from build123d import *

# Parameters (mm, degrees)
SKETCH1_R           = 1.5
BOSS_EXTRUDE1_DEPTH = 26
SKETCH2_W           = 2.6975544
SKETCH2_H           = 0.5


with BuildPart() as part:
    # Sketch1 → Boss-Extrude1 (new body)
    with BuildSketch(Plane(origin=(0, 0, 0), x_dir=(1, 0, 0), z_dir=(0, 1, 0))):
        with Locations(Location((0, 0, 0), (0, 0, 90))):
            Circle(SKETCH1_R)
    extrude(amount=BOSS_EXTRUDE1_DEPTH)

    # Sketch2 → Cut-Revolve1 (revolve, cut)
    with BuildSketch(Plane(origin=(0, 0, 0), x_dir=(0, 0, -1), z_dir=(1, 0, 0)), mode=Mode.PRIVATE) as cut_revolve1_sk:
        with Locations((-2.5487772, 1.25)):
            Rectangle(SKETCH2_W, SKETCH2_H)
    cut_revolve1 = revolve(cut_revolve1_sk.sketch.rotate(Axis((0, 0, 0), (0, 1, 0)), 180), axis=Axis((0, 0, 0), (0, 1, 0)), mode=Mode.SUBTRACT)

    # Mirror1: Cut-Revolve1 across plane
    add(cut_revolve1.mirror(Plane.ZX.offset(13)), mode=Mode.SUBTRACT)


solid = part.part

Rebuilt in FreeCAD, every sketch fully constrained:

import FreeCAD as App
import Part
import Sketcher
from FreeCAD import Vector


def add_polygon(sketch, points):
    """Adds a closed chain of lines whose ends are joined by coincident constraints."""
    first, n = sketch.GeometryCount, len(points)
    for a, b in zip(points, points[1:] + points[:1]):
        sketch.addGeometry(Part.LineSegment(App.Vector(*a, 0), App.Vector(*b, 0)), False)
    for i in range(n):
        sketch.addConstraint(Sketcher.Constraint("Coincident", first + i, 2, first + (i + 1) % n, 1))

doc = App.newDocument("Part")
body = doc.addObject("PartDesign::Body", "Body")

# Sketch on XZ plane
sketch1 = doc.addObject("Sketcher::SketchObject", "Sketch")
body.addObject(sketch1)
sketch1.AttachmentSupport = (doc.XZ_Plane, [""])
sketch1.MapMode = "FlatFace"
sketch1.addGeometry(Part.Circle(Vector(0, 0, 0), Vector(0, 0, 1), 1.5), False)
sketch1.addConstraint([
    Sketcher.Constraint("Coincident", 0, 3, -1, 1),
    Sketcher.Constraint("Diameter", 0, 3.0),
])
pad1 = doc.addObject("PartDesign::Pad", "Pad")
body.addObject(pad1)
pad1.Profile = sketch1
pad1.Length = 26
pad1.Reversed = True

# Sketch on YZ plane
sketch2 = doc.addObject("Sketcher::SketchObject", "Sketch001")
body.addObject(sketch2)
sketch2.AttachmentSupport = (doc.YZ_Plane, [""])
sketch2.MapMode = "FlatFace"
add_polygon(sketch2, [(1.5, 3.9), (1, 3.9), (1, 1.2), (1.5, 1.2)])  # lines 0-3
sketch2.addConstraint([
    Sketcher.Constraint("Horizontal", 0),
    Sketcher.Constraint("Vertical", 1),
    Sketcher.Constraint("Horizontal", 2),
    Sketcher.Constraint("Vertical", 3),
    Sketcher.Constraint("DistanceX", 0, 2, 0, 1, 0.5),
    Sketcher.Constraint("DistanceX", -1, 1, 0, 2, 1.0),
    Sketcher.Constraint("DistanceY", -1, 1, 1, 2, 1.2),
    Sketcher.Constraint("DistanceY", 1, 2, 1, 1, 2.697554),
])
groove = doc.addObject("PartDesign::Groove", "Groove")
body.addObject(groove)
groove.Profile = sketch2
groove.ReferenceAxis = (sketch2, ["H_Axis"])
groove.Angle = 360
doc.recompute()

datumplane = doc.addObject("PartDesign::Plane", "DatumPlane")
body.addObject(datumplane)
datumplane.AttachmentSupport = (doc.XZ_Plane, [""])
datumplane.MapMode = "FlatFace"
datumplane.AttachmentOffset = App.Placement(Vector(0, 0, -13), App.Rotation())
mirrored = doc.addObject("PartDesign::Mirrored", "Mirrored")
body.addObject(mirrored)
mirrored.Originals = [groove]
mirrored.MirrorPlane = (datumplane, [""])
body.Tip = mirrored

doc.recompute()
